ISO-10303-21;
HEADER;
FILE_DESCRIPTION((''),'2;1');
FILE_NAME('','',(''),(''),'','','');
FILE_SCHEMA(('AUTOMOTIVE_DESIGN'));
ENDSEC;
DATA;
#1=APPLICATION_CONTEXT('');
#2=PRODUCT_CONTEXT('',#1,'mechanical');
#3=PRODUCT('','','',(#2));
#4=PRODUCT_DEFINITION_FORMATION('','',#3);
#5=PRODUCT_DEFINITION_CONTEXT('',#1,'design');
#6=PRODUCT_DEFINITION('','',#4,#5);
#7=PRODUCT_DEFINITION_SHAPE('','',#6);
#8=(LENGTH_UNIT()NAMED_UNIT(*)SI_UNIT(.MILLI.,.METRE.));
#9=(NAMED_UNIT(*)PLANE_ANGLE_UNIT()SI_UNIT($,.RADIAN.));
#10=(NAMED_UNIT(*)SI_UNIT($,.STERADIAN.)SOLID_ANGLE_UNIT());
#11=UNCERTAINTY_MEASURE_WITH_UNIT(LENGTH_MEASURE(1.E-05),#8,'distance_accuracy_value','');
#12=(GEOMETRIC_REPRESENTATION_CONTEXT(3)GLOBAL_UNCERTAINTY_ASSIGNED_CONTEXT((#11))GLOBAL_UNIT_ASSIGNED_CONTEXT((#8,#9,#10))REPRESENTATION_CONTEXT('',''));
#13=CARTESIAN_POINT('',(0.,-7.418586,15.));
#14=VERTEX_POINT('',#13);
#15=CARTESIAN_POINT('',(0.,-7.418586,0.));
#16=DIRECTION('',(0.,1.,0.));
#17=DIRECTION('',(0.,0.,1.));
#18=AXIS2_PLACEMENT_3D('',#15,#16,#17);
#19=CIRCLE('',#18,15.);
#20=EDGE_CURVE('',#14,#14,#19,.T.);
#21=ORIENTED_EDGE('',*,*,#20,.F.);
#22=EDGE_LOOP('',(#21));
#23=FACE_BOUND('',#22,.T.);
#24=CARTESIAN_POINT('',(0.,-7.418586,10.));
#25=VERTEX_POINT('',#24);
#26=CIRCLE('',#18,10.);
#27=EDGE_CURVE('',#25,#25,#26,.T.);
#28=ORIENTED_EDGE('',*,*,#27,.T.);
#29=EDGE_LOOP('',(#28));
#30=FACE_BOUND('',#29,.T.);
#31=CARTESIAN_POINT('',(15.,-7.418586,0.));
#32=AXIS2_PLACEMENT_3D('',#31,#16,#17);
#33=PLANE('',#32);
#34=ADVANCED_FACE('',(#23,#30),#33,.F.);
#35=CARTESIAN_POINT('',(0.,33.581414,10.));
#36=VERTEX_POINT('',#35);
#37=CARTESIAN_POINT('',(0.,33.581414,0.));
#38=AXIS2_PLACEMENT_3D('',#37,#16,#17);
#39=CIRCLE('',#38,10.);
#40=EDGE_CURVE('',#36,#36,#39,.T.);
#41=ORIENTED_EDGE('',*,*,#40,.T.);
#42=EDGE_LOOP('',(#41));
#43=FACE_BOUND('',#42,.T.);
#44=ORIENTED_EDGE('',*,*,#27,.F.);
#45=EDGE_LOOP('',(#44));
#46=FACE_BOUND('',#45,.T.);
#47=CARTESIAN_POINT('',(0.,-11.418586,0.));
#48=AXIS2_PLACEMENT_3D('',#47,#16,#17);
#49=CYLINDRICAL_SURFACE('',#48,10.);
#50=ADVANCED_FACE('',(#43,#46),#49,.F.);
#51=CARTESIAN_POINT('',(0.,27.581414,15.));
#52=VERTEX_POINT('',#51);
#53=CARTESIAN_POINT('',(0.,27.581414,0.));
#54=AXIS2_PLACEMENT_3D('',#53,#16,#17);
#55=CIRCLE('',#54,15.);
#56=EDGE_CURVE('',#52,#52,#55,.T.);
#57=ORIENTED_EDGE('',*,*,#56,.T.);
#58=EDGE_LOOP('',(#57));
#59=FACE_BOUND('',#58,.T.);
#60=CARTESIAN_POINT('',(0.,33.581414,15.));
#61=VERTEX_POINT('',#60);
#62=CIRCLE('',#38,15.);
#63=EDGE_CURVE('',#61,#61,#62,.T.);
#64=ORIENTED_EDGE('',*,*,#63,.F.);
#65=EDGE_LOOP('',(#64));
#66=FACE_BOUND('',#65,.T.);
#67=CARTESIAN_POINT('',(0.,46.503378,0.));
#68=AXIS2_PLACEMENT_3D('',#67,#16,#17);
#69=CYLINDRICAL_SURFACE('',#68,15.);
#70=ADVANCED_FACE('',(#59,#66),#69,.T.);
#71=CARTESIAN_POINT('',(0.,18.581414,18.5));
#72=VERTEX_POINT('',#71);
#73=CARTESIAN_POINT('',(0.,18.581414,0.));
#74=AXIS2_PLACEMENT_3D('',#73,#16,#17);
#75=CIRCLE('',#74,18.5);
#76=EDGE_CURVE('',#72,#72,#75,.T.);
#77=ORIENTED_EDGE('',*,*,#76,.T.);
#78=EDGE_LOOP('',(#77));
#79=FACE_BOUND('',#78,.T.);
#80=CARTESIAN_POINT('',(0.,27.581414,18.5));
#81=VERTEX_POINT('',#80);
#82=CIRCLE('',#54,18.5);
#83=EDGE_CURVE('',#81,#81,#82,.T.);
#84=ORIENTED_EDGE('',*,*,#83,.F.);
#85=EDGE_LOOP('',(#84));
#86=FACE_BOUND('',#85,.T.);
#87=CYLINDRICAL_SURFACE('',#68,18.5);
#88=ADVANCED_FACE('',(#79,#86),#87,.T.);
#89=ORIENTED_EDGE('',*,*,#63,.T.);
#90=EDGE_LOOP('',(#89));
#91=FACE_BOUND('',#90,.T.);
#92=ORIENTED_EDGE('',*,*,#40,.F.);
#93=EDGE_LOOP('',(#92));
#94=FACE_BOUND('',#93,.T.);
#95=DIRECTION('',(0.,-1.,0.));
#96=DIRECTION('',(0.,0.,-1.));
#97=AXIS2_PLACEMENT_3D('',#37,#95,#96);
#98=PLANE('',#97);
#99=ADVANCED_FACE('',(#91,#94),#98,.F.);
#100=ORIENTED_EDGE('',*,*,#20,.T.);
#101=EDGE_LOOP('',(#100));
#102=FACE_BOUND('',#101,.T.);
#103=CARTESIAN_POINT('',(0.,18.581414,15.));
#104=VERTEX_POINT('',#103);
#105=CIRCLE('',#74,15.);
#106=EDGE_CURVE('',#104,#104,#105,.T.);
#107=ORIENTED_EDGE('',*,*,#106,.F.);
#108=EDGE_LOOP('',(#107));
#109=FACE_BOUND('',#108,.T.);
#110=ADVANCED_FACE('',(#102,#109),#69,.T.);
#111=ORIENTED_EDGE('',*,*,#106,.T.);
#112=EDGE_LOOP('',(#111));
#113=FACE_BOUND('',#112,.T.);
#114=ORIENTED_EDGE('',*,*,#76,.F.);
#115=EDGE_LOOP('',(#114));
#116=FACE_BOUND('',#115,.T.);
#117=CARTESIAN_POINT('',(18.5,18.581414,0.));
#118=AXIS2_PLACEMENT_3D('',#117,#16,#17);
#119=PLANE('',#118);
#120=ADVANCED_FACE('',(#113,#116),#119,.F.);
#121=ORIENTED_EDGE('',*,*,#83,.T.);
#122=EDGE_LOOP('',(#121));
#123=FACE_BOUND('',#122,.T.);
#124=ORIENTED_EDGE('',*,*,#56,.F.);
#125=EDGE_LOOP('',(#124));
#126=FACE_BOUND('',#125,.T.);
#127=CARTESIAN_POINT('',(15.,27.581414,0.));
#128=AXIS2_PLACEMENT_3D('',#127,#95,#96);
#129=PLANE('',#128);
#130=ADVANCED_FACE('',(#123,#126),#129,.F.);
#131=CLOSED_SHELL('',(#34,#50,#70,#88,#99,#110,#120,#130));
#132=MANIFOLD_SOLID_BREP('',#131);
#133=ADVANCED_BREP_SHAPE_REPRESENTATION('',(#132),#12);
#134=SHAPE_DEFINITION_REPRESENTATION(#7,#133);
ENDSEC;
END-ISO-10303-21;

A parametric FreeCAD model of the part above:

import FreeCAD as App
import Part
import Sketcher

V = App.Vector
Q = App.Units.Quantity

doc = App.newDocument("Part")
body = doc.addObject("PartDesign::Body", "Body")

sketch1 = body.newObject("Sketcher::SketchObject", "Sketch")
sketch1.AttachmentSupport = (doc.getObject("XY_Plane"), [""])
sketch1.MapMode = "FlatFace"
sketch1.addGeometry(Part.LineSegment(V(15, 33.581414, 0), V(0, 33.581414, 0)), False)
sketch1.addGeometry(Part.LineSegment(V(0, 33.581414, 0), V(0, -7.418586, 0)), False)
sketch1.addGeometry(Part.LineSegment(V(0, -7.418586, 0), V(15, -7.418586, 0)), False)
sketch1.addGeometry(Part.LineSegment(V(15, -7.418586, 0), V(15, 18.581414, 0)), False)
sketch1.addGeometry(Part.LineSegment(V(15, 18.581414, 0), V(18.5, 18.581414, 0)), False)
sketch1.addGeometry(Part.LineSegment(V(18.5, 18.581414, 0), V(18.5, 27.581414, 0)), False)
sketch1.addGeometry(Part.LineSegment(V(18.5, 27.581414, 0), V(15, 27.581414, 0)), False)
sketch1.addGeometry(Part.LineSegment(V(15, 27.581414, 0), V(15, 33.581414, 0)), False)
sketch1.addConstraint(Sketcher.Constraint("Coincident", 0, 2, 1, 1))
sketch1.addConstraint(Sketcher.Constraint("Coincident", 1, 2, 2, 1))
sketch1.addConstraint(Sketcher.Constraint("Coincident", 2, 2, 3, 1))
sketch1.addConstraint(Sketcher.Constraint("Coincident", 3, 2, 4, 1))
sketch1.addConstraint(Sketcher.Constraint("Coincident", 4, 2, 5, 1))
sketch1.addConstraint(Sketcher.Constraint("Coincident", 5, 2, 6, 1))
sketch1.addConstraint(Sketcher.Constraint("Coincident", 6, 2, 7, 1))
sketch1.addConstraint(Sketcher.Constraint("Coincident", 7, 2, 0, 1))
sketch1.addConstraint(Sketcher.Constraint("Horizontal", 0))
sketch1.addConstraint(Sketcher.Constraint("Vertical", 1))
sketch1.addConstraint(Sketcher.Constraint("Horizontal", 2))
sketch1.addConstraint(Sketcher.Constraint("Vertical", 3))
sketch1.addConstraint(Sketcher.Constraint("Horizontal", 4))
sketch1.addConstraint(Sketcher.Constraint("Vertical", 5))
sketch1.addConstraint(Sketcher.Constraint("Horizontal", 6))
sketch1.addConstraint(Sketcher.Constraint("Vertical", 7))
sketch1.addConstraint(Sketcher.Constraint("PointOnObject", 0, 2, -2))
sketch1.addConstraint(Sketcher.Constraint("Vertical", 3, 2, 6, 2))
sketch1.addConstraint(Sketcher.Constraint("DistanceX", 0, 2, 0, 1, Q("15 mm")))
sketch1.addConstraint(Sketcher.Constraint("DistanceY", 1, 2, 1, 1, Q("41 mm")))
sketch1.addConstraint(Sketcher.Constraint("DistanceY", 3, 1, 3, 2, Q("26 mm")))
sketch1.addConstraint(Sketcher.Constraint("DistanceY", 5, 1, 5, 2, Q("9 mm")))
sketch1.addConstraint(Sketcher.Constraint("DistanceX", 4, 1, 4, 2, Q("3.5 mm")))
sketch1.addConstraint(Sketcher.Constraint("DistanceY", -1, 1, 0, 2, Q("33.581414 mm")))
revolution = body.newObject("PartDesign::Revolution", "Revolution")
revolution.Profile = sketch1
revolution.ReferenceAxis = (sketch1, ["V_Axis"])
revolution.Angle = 360

sketch2 = body.newObject("Sketcher::SketchObject", "Sketch001")
sketch2.AttachmentSupport = (doc.getObject("XZ_Plane"), [""])
sketch2.MapMode = "FlatFace"
sketch2.AttachmentOffset = App.Placement(V(0, 0, -33.581414), App.Rotation())
sketch2.addGeometry(Part.Circle(V(0, 0, 0), V(0, 0, 1), 10), False)
sketch2.addConstraint(Sketcher.Constraint("Coincident", 0, 3, -1, 1))
sketch2.addConstraint(Sketcher.Constraint("Diameter", 0, Q("20 mm")))
pocket1 = body.newObject("PartDesign::Pocket", "Pocket")
pocket1.Profile = sketch2
pocket1.Length = 45
pocket1.Reversed = True

doc.recompute()
